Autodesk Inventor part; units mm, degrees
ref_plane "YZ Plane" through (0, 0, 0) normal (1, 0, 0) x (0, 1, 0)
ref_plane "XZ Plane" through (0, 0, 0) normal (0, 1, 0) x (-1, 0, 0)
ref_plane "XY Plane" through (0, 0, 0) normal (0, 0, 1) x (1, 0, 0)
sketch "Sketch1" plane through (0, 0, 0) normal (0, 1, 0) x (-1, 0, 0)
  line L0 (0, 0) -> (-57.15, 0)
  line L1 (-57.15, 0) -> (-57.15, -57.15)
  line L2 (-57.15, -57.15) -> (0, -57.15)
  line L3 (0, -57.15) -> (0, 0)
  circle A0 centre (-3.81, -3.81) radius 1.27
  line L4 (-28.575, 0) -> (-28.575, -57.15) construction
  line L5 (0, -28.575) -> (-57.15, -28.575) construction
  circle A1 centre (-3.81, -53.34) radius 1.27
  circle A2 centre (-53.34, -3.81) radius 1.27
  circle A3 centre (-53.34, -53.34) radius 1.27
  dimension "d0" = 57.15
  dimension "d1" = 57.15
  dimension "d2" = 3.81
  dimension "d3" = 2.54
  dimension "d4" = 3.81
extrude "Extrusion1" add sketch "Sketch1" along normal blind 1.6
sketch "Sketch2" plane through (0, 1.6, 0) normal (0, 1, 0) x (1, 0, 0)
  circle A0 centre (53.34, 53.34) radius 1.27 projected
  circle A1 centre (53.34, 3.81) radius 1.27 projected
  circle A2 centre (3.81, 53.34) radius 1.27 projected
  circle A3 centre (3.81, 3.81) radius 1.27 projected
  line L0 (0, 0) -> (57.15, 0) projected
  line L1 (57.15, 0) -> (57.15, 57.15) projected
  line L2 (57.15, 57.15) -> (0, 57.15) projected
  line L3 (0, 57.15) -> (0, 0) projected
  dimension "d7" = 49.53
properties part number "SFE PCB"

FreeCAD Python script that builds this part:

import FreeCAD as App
import Part
import Sketcher
from FreeCAD import Vector
Q = App.Units.Quantity

doc = App.newDocument("Part")
params = doc.addObject("Spreadsheet::Sheet", "Params")
for row, (alias, value) in enumerate([
    ("sketch1_diameter", "0.1 in"),
    ("sketch1_width", "2.25 in"),
    ("pad1_length", "0.0629921 in"),
], start=1):
    params.set(f"A{row}", alias)
    params.set(f"B{row}", "=" + value)
    params.setAlias(f"B{row}", alias)

body = doc.addObject("PartDesign::Body", "Body")

# Sketch on XZ plane
sketch1 = doc.addObject("Sketcher::SketchObject", "Sketch")
body.addObject(sketch1)
sketch1.AttachmentSupport = (doc.XZ_Plane, [""])
sketch1.MapMode = "FlatFace"
sketch1.addGeometry([
    Part.LineSegment(Vector(0, -57.1, 0), Vector(0, 0, 0)),  # 0
    Part.LineSegment(Vector(0, 0, 0), Vector(57.1, 0, 0)),  # 1
    Part.LineSegment(Vector(57.1, 0, 0), Vector(57.1, -57.1, 0)),  # 2
    Part.LineSegment(Vector(57.1, -57.1, 0), Vector(0, -57.1, 0)),  # 3
    Part.Circle(Vector(53.3, -53.3, 0), Vector(0, 0, 1), 1.3),  # 4
    Part.Circle(Vector(3.8, -53.3, 0), Vector(0, 0, 1), 1.3),  # 5
    Part.Circle(Vector(53.3, -3.8, 0), Vector(0, 0, 1), 1.3),  # 6
    Part.Circle(Vector(3.8, -3.8, 0), Vector(0, 0, 1), 1.3),  # 7
], False)
sketch1.addConstraint([
    Sketcher.Constraint("Coincident", 0, 2, 1, 1),
    Sketcher.Constraint("Coincident", 1, 2, 2, 1),
    Sketcher.Constraint("Coincident", 2, 2, 3, 1),
    Sketcher.Constraint("Coincident", 3, 2, 0, 1),
    Sketcher.Constraint("Vertical", 0),
    Sketcher.Constraint("Horizontal", 1),
    Sketcher.Constraint("Vertical", 2),
    Sketcher.Constraint("Horizontal", 3),
    Sketcher.Constraint("Coincident", 0, 2, -1, 1),
    Sketcher.Constraint("Equal", 4, 5),
    Sketcher.Constraint("Equal", 5, 6),
    Sketcher.Constraint("Equal", 6, 7),
    Sketcher.Constraint("Horizontal", 4, 3, 5, 3),
    Sketcher.Constraint("Horizontal", 6, 3, 7, 3),
    Sketcher.Constraint("Vertical", 4, 3, 6, 3),
    Sketcher.Constraint("Vertical", 5, 3, 7, 3),
    Sketcher.Constraint("Equal", 3, 0),
    Sketcher.Constraint("Diameter", 4, Q("0.1 in")),
    Sketcher.Constraint("DistanceX", 1, 1, 1, 2, Q("2.25 in")),
    Sketcher.Constraint("DistanceX", -1, 1, 5, 3, Q("0.15 in")),
    Sketcher.Constraint("DistanceY", 6, 3, -1, 1, Q("0.15 in")),
    Sketcher.Constraint("DistanceX", 6, 3, 1, 2, Q("0.15 in")),
    Sketcher.Constraint("DistanceY", 2, 2, 4, 3, Q("0.15 in")),
])
sketch1.setExpression("Constraints[17]", "Params.sketch1_diameter")
sketch1.setExpression("Constraints[18]", "Params.sketch1_width")
pad1 = doc.addObject("PartDesign::Pad", "Pad")
body.addObject(pad1)
pad1.Profile = sketch1
pad1.setExpression("Length", "Params.pad1_length")
pad1.Reversed = True

doc.recompute()
